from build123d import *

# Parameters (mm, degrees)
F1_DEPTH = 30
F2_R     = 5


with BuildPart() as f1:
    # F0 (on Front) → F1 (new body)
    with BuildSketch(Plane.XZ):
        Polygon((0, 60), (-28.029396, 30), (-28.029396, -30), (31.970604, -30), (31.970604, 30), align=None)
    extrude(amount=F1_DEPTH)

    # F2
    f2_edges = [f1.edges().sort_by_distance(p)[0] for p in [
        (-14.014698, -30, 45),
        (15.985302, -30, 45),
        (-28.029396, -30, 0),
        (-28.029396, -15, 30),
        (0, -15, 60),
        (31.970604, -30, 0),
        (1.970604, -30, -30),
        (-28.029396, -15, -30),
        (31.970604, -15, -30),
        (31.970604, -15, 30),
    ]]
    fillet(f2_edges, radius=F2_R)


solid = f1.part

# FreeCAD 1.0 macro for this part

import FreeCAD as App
import Part
import Sketcher
from FreeCAD import Vector


def edges_at(feature, points):
    """Names of the edges that pass closest to the given points."""
    edges = feature.Shape.Edges
    near = lambda p: min(range(len(edges)), key=lambda i: edges[i].distToShape(Part.Vertex(*p))[0])
    return sorted({f"Edge{near(p) + 1}" for p in points})


def add_polygon(sketch, points):
    """Adds a closed chain of lines whose ends are joined by coincident constraints."""
    first, n = sketch.GeometryCount, len(points)
    for a, b in zip(points, points[1:] + points[:1]):
        sketch.addGeometry(Part.LineSegment(App.Vector(*a, 0), App.Vector(*b, 0)), False)
    for i in range(n):
        sketch.addConstraint(Sketcher.Constraint("Coincident", first + i, 2, first + (i + 1) % n, 1))

doc = App.newDocument("Part")
body = doc.addObject("PartDesign::Body", "Body")

# Sketch on XZ plane
sketch1 = body.newObject("Sketcher::SketchObject", "Sketch")
sketch1.AttachmentSupport = (doc.getObject("XZ_Plane"), [""])
sketch1.MapMode = "FlatFace"
add_polygon(sketch1, [(0, 60), (-28.029396, 30), (-28.029396, -30), (31.970604, -30), (31.970604, 30)])  # lines 0-4
sketch1.addConstraint(Sketcher.Constraint("Vertical", 1))
sketch1.addConstraint(Sketcher.Constraint("Horizontal", 2))
sketch1.addConstraint(Sketcher.Constraint("Vertical", 3))
sketch1.addConstraint(Sketcher.Constraint("PointOnObject", 4, 2, -2))
sketch1.addConstraint(Sketcher.Constraint("Horizontal", 0, 2, 3, 2))
sketch1.addConstraint(Sketcher.Constraint("Equal", 2, 1))
sketch1.addConstraint(Sketcher.Constraint("DistanceX", 2, 1, 2, 2, 60.0))
sketch1.addConstraint(Sketcher.Constraint("DistanceY", -1, 1, 0, 2, 30.0))
sketch1.addConstraint(Sketcher.Constraint("DistanceY", -1, 1, 4, 2, 60.0))
sketch1.addConstraint(Sketcher.Constraint("Distance", 0, 41.056632))
pad1 = body.newObject("PartDesign::Pad", "Pad")
pad1.Profile = sketch1
pad1.Length = 30
doc.recompute()

fillet = body.newObject("PartDesign::Fillet", "Fillet")
fillet.Base = (pad1, edges_at(pad1, [
    (-14.015, -30, 45),
    (15.985, -30, 45),
    (-28.029, -30, 0),
    (-28.029, -15, 30),
    (0, -15, 60),
    (31.971, -30, 0),
    (1.971, -30, -30),
    (-28.029, -15, -30),
    (31.971, -15, -30),
    (31.971, -15, 30),
]))
fillet.Radius = 5

doc.recompute()
